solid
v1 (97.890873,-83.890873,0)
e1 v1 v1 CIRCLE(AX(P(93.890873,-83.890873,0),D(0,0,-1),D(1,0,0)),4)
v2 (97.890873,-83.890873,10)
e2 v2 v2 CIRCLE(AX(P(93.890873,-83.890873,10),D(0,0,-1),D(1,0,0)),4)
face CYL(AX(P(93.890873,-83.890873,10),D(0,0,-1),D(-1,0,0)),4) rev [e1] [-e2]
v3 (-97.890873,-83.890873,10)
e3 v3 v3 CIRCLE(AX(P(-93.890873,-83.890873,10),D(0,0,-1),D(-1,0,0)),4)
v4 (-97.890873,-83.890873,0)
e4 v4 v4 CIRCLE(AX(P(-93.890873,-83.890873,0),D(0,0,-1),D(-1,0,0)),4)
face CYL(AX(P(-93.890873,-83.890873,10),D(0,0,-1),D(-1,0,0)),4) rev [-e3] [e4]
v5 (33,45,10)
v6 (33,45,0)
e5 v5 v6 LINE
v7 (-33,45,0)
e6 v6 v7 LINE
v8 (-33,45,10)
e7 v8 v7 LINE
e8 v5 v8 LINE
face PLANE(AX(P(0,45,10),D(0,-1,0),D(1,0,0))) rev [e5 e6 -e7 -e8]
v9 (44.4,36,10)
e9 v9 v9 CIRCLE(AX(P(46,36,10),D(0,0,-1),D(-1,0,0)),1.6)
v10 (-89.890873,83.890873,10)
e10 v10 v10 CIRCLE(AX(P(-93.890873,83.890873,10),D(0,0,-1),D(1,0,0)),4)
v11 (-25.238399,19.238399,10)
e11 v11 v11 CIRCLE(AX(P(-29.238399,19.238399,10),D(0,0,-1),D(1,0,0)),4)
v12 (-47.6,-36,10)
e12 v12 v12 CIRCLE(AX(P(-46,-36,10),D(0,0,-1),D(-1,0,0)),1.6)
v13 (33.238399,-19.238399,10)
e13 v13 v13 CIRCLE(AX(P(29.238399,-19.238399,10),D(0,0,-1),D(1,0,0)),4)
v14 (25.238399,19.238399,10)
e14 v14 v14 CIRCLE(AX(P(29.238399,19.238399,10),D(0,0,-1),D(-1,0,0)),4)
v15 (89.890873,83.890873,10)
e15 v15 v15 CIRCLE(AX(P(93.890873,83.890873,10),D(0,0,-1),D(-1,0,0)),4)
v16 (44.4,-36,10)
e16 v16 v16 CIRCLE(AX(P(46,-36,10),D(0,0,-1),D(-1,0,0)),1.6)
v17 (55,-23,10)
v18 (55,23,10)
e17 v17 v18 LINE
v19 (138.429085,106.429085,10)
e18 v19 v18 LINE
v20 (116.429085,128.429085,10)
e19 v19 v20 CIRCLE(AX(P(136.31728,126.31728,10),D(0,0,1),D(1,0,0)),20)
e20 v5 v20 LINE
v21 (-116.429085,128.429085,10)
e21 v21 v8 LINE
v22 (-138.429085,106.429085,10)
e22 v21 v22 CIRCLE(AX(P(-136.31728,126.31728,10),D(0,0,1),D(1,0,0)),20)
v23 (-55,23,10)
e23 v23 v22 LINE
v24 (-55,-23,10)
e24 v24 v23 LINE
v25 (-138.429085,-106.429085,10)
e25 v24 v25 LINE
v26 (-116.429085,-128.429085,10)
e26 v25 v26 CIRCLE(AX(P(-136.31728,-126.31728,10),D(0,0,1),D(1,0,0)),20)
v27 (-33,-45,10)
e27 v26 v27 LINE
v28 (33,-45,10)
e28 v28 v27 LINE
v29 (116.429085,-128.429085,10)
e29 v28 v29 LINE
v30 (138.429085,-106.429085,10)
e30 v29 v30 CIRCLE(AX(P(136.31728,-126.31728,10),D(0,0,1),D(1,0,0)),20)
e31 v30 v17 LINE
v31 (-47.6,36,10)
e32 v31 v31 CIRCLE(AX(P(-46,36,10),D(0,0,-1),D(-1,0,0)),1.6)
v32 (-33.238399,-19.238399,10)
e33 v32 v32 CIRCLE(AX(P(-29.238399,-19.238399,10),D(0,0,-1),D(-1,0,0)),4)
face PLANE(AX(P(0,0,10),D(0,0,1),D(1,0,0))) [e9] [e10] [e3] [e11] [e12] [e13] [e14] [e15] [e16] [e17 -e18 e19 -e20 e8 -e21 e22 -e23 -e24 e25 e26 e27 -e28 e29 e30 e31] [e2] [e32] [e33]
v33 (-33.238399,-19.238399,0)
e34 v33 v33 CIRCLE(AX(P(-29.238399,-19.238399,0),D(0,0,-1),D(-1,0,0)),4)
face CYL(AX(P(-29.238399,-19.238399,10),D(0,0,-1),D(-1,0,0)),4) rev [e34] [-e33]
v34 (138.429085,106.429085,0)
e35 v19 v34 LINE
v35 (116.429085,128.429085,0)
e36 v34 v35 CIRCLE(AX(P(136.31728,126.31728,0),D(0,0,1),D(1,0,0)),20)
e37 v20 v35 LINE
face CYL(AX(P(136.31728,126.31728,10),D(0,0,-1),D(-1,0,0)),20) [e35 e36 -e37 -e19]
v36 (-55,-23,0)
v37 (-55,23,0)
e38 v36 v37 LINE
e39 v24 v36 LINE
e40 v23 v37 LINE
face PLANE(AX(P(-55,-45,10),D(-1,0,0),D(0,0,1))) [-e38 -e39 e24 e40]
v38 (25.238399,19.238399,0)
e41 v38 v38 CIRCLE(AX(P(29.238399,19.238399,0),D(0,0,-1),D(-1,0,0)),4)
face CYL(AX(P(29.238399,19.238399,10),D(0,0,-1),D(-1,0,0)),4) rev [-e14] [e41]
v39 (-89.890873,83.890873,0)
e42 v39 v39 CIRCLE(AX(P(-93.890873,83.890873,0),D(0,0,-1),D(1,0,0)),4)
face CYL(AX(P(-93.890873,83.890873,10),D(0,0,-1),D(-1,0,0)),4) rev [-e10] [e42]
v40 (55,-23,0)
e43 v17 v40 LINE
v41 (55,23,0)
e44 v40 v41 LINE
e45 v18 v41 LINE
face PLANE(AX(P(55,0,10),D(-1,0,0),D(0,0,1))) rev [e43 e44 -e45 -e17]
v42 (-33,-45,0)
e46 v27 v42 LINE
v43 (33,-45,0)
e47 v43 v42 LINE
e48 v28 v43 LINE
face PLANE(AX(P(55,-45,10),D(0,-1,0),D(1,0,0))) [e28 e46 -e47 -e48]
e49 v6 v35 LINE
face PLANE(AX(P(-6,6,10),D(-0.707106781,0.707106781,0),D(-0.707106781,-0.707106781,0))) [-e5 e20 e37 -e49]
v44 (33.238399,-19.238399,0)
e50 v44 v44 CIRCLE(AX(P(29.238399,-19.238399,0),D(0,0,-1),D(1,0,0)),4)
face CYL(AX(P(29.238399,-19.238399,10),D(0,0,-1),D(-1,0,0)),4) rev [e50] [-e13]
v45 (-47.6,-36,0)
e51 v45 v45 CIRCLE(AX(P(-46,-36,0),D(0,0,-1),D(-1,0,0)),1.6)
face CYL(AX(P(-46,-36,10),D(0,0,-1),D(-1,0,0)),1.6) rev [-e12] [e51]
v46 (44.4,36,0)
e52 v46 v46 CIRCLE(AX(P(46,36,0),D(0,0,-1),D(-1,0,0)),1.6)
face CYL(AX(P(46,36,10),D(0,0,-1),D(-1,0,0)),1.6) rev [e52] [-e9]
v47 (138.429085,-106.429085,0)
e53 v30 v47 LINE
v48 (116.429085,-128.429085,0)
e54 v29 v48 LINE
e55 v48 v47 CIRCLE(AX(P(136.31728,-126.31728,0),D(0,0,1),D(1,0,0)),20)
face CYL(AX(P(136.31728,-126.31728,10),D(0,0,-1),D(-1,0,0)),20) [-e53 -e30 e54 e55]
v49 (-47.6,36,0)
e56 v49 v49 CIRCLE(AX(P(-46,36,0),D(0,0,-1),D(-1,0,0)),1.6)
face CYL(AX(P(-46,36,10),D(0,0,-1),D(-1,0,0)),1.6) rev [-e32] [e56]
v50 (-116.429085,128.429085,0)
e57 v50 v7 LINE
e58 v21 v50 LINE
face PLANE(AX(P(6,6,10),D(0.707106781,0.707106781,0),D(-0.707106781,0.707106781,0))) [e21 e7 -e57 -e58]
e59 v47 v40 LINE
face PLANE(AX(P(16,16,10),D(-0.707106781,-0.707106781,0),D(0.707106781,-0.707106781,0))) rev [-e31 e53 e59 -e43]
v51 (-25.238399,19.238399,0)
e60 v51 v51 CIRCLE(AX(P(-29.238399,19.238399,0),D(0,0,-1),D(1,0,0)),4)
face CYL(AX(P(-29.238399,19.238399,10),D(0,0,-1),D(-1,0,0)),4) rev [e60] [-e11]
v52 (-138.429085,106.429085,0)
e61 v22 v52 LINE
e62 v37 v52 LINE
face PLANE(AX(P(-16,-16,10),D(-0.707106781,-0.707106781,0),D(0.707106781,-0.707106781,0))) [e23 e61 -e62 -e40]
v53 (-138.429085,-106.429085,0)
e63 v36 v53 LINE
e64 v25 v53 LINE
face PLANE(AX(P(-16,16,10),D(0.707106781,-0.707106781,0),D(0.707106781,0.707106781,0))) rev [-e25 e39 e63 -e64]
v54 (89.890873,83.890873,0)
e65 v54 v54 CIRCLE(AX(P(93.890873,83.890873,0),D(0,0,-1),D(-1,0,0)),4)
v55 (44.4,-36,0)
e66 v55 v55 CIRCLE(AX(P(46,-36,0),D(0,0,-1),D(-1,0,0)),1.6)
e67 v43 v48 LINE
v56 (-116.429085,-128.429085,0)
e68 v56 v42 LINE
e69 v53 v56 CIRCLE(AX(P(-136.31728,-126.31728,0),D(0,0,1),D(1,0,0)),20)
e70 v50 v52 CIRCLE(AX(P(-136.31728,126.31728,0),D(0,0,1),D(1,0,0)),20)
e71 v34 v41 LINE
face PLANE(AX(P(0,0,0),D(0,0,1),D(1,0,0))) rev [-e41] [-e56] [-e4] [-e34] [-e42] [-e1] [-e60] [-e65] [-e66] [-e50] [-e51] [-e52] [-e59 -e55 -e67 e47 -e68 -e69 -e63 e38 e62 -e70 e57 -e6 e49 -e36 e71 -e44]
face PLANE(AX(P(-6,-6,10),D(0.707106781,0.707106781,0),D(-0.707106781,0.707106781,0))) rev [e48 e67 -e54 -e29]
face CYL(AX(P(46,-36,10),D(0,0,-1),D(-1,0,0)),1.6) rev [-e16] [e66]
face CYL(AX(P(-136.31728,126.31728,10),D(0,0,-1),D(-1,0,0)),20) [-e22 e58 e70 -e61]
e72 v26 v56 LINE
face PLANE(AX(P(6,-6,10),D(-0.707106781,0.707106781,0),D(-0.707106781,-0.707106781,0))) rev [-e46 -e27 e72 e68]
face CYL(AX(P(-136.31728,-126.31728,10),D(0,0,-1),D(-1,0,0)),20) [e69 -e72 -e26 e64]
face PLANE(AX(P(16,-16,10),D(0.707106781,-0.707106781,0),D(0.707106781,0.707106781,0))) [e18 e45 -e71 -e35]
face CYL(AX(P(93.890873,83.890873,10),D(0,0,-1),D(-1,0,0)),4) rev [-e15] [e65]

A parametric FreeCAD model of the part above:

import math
import FreeCAD as App
import Part
import Sketcher
from FreeCAD import Vector

doc = App.newDocument("Part")
body = doc.addObject("PartDesign::Body", "Body")

# Sketch on XY plane
sketch1 = body.newObject("Sketcher::SketchObject", "Sketch")
sketch1.AttachmentSupport = (doc.getObject("XY_Plane"), [""])
sketch1.MapMode = "FlatFace"
sketch1.addGeometry(Part.ArcOfCircle(Part.Circle(Vector(-136, 126, 0), Vector(0, 0, 1), 20), math.radians(6), math.radians(264)), False)
sketch1.addGeometry(Part.LineSegment(Vector(-138, 106, 0), Vector(-55, 23, 0)), False)
sketch1.addGeometry(Part.LineSegment(Vector(-55, 23, 0), Vector(-55, -23, 0)), False)
sketch1.addGeometry(Part.LineSegment(Vector(-55, -23, 0), Vector(-138, -106, 0)), False)
sketch1.addGeometry(Part.ArcOfCircle(Part.Circle(Vector(-136, -126, 0), Vector(0, 0, 1), 20), math.radians(96), math.radians(354)), False)
sketch1.addGeometry(Part.LineSegment(Vector(-116, -128, 0), Vector(-33, -45, 0)), False)
sketch1.addGeometry(Part.LineSegment(Vector(-33, -45, 0), Vector(33, -45, 0)), False)
sketch1.addGeometry(Part.LineSegment(Vector(33, -45, 0), Vector(116, -128, 0)), False)
sketch1.addGeometry(Part.ArcOfCircle(Part.Circle(Vector(136, -126, 0), Vector(0, 0, 1), 20), math.radians(-174), math.radians(0)), False)
sketch1.addGeometry(Part.ArcOfCircle(Part.Circle(Vector(136, -126, 0), Vector(0, 0, 1), 20), math.radians(0), math.radians(84)), False)
sketch1.addGeometry(Part.LineSegment(Vector(138, -106, 0), Vector(55, -23, 0)), False)
sketch1.addGeometry(Part.LineSegment(Vector(55, -23, 0), Vector(55, 23, 0)), False)
sketch1.addGeometry(Part.LineSegment(Vector(55, 23, 0), Vector(138, 106, 0)), False)
sketch1.addGeometry(Part.ArcOfCircle(Part.Circle(Vector(136, 126, 0), Vector(0, 0, 1), 20), math.radians(-84), math.radians(0)), False)
sketch1.addGeometry(Part.ArcOfCircle(Part.Circle(Vector(136, 126, 0), Vector(0, 0, 1), 20), math.radians(0), math.radians(174)), False)
sketch1.addGeometry(Part.LineSegment(Vector(116, 128, 0), Vector(33, 45, 0)), False)
sketch1.addGeometry(Part.LineSegment(Vector(33, 45, 0), Vector(-33, 45, 0)), False)
sketch1.addGeometry(Part.LineSegment(Vector(-33, 45, 0), Vector(-116, 128, 0)), False)
sketch1.addConstraint(Sketcher.Constraint("Coincident", 0, 2, 1, 1))
sketch1.addConstraint(Sketcher.Constraint("Coincident", 1, 2, 2, 1))
sketch1.addConstraint(Sketcher.Constraint("Coincident", 2, 2, 3, 1))
sketch1.addConstraint(Sketcher.Constraint("Coincident", 3, 2, 4, 1))
sketch1.addConstraint(Sketcher.Constraint("Coincident", 4, 2, 5, 1))
sketch1.addConstraint(Sketcher.Constraint("Coincident", 5, 2, 6, 1))
sketch1.addConstraint(Sketcher.Constraint("Coincident", 6, 2, 7, 1))
sketch1.addConstraint(Sketcher.Constraint("Coincident", 7, 2, 8, 1))
sketch1.addConstraint(Sketcher.Constraint("Tangent", 8, 2, 9, 1))
sketch1.addConstraint(Sketcher.Constraint("Coincident", 9, 2, 10, 1))
sketch1.addConstraint(Sketcher.Constraint("Coincident", 10, 2, 11, 1))
sketch1.addConstraint(Sketcher.Constraint("Coincident", 11, 2, 12, 1))
sketch1.addConstraint(Sketcher.Constraint("Coincident", 12, 2, 13, 1))
sketch1.addConstraint(Sketcher.Constraint("Tangent", 13, 2, 14, 1))
sketch1.addConstraint(Sketcher.Constraint("Coincident", 14, 2, 15, 1))
sketch1.addConstraint(Sketcher.Constraint("Coincident", 15, 2, 16, 1))
sketch1.addConstraint(Sketcher.Constraint("Coincident", 16, 2, 17, 1))
sketch1.addConstraint(Sketcher.Constraint("Coincident", 17, 2, 0, 1))
sketch1.addConstraint(Sketcher.Constraint("Vertical", 2))
sketch1.addConstraint(Sketcher.Constraint("Horizontal", 6))
sketch1.addConstraint(Sketcher.Constraint("Vertical", 11))
sketch1.addConstraint(Sketcher.Constraint("Horizontal", 16))
sketch1.addConstraint(Sketcher.Constraint("Equal", 0, 4))
sketch1.addConstraint(Sketcher.Constraint("Equal", 4, 8))
sketch1.addConstraint(Sketcher.Constraint("Equal", 8, 9))
sketch1.addConstraint(Sketcher.Constraint("Equal", 9, 13))
sketch1.addConstraint(Sketcher.Constraint("Equal", 13, 14))
sketch1.addConstraint(Sketcher.Constraint("Symmetric", 0, 3, 8, 3, -1, 1))
sketch1.addConstraint(Sketcher.Constraint("Symmetric", 4, 3, 13, 3, -1, 1))
sketch1.addConstraint(Sketcher.Constraint("Symmetric", 1, 2, 10, 2, -1, 1))
sketch1.addConstraint(Sketcher.Constraint("Symmetric", 5, 2, 15, 2, -1, 1))
sketch1.addConstraint(Sketcher.Constraint("Symmetric", 4, 3, 8, 3, -2))
sketch1.addConstraint(Sketcher.Constraint("Perpendicular", 1, 3))
sketch1.addConstraint(Sketcher.Constraint("Parallel", 3, 5))
sketch1.addConstraint(Sketcher.Constraint("Perpendicular", 5, 7))
sketch1.addConstraint(Sketcher.Constraint("Parallel", 7, 10))
sketch1.addConstraint(Sketcher.Constraint("Perpendicular", 10, 12))
sketch1.addConstraint(Sketcher.Constraint("Parallel", 12, 15))
sketch1.addConstraint(Sketcher.Constraint("Perpendicular", 15, 17))
sketch1.addConstraint(Sketcher.Constraint("Horizontal", 4, 2, 7, 2))
sketch1.addConstraint(Sketcher.Constraint("Horizontal", 9, 3, 8, 2))
sketch1.addConstraint(Sketcher.Constraint("Horizontal", 3, 2, 9, 2))
sketch1.addConstraint(Sketcher.Constraint("Horizontal", 2, 2, 10, 2))
sketch1.addConstraint(Sketcher.Constraint("Horizontal", 1, 2, 11, 2))
sketch1.addConstraint(Sketcher.Constraint("Horizontal", 14, 3, 13, 2))
sketch1.addConstraint(Sketcher.Constraint("Horizontal", 14, 2, 17, 2))
sketch1.addConstraint(Sketcher.Constraint("Equal", 3, 5))
sketch1.addConstraint(Sketcher.Constraint("Radius", 0, 20.0))
sketch1.addConstraint(Sketcher.Constraint("DistanceX", 6, 1, 6, 2, 66.0))
sketch1.addConstraint(Sketcher.Constraint("DistanceY", 2, 2, 2, 1, 46.0))
sketch1.addConstraint(Sketcher.Constraint("DistanceX", 1, 2, -1, 1, 55.0))
sketch1.addConstraint(Sketcher.Constraint("DistanceY", 5, 2, -1, 1, 45.0))
sketch1.addConstraint(Sketcher.Constraint("DistanceX", 0, 3, -1, 1, 136.31728))
pad1 = body.newObject("PartDesign::Pad", "Pad")
pad1.Profile = sketch1
pad1.Length = 10

# Sketch on XY plane
sketch2 = body.newObject("Sketcher::SketchObject", "Sketch001")
sketch2.AttachmentSupport = (doc.getObject("XY_Plane"), [""])
sketch2.MapMode = "FlatFace"
sketch2.addGeometry(Part.Circle(Vector(-93.9, 83.9, 0), Vector(0, 0, 1), 4), False)
sketch2.addGeometry(Part.Circle(Vector(93.9, 83.9, 0), Vector(0, 0, 1), 4), False)
sketch2.addGeometry(Part.Circle(Vector(29.2, 19.2, 0), Vector(0, 0, 1), 4), False)
sketch2.addGeometry(Part.Circle(Vector(46, 36, 0), Vector(0, 0, 1), 1.6), False)
sketch2.addGeometry(Part.Circle(Vector(-46, 36, 0), Vector(0, 0, 1), 1.6), False)
sketch2.addGeometry(Part.Circle(Vector(-46, -36, 0), Vector(0, 0, 1), 1.6), False)
sketch2.addGeometry(Part.Circle(Vector(46, -36, 0), Vector(0, 0, 1), 1.6), False)
sketch2.addGeometry(Part.Circle(Vector(-29.2, 19.2, 0), Vector(0, 0, 1), 4), False)
sketch2.addGeometry(Part.Circle(Vector(93.9, -83.9, 0), Vector(0, 0, 1), 4), False)
sketch2.addGeometry(Part.Circle(Vector(29.2, -19.2, 0), Vector(0, 0, 1), 4), False)
sketch2.addGeometry(Part.Circle(Vector(-29.2, -19.2, 0), Vector(0, 0, 1), 4), False)
sketch2.addGeometry(Part.Circle(Vector(-93.9, -83.9, 0), Vector(0, 0, 1), 4), False)
sketch2.addConstraint(Sketcher.Constraint("Equal", 0, 1))
sketch2.addConstraint(Sketcher.Constraint("Equal", 1, 2))
sketch2.addConstraint(Sketcher.Constraint("Equal", 3, 4))
sketch2.addConstraint(Sketcher.Constraint("Equal", 4, 5))
sketch2.addConstraint(Sketcher.Constraint("Equal", 5, 6))
sketch2.addConstraint(Sketcher.Constraint("Equal", 2, 7))
sketch2.addConstraint(Sketcher.Constraint("Equal", 7, 8))
sketch2.addConstraint(Sketcher.Constraint("Equal", 8, 9))
sketch2.addConstraint(Sketcher.Constraint("Equal", 9, 10))
sketch2.addConstraint(Sketcher.Constraint("Equal", 10, 11))
sketch2.addConstraint(Sketcher.Constraint("Symmetric", 3, 3, 5, 3, -1, 1))
sketch2.addConstraint(Sketcher.Constraint("Symmetric", 4, 3, 6, 3, -1, 1))
sketch2.addConstraint(Sketcher.Constraint("Symmetric", 0, 3, 8, 3, -1, 1))
sketch2.addConstraint(Sketcher.Constraint("Symmetric", 7, 3, 9, 3, -1, 1))
sketch2.addConstraint(Sketcher.Constraint("Symmetric", 2, 3, 10, 3, -1, 1))
sketch2.addConstraint(Sketcher.Constraint("Symmetric", 1, 3, 11, 3, -1, 1))
sketch2.addConstraint(Sketcher.Constraint("Symmetric", 0, 3, 1, 3, -2))
sketch2.addConstraint(Sketcher.Constraint("Symmetric", 3, 3, 4, 3, -2))
sketch2.addConstraint(Sketcher.Constraint("Symmetric", 2, 3, 7, 3, -2))
sketch2.addConstraint(Sketcher.Constraint("Diameter", 0, 8.0))
sketch2.addConstraint(Sketcher.Constraint("Diameter", 3, 3.2))
sketch2.addConstraint(Sketcher.Constraint("DistanceX", -1, 1, 3, 3, 46.0))
sketch2.addConstraint(Sketcher.Constraint("DistanceY", -1, 1, 3, 3, 36.0))
sketch2.addConstraint(Sketcher.Constraint("DistanceX", -1, 1, 2, 3, 29.238399))
sketch2.addConstraint(Sketcher.Constraint("DistanceY", -1, 1, 2, 3, 19.238399))
sketch2.addConstraint(Sketcher.Constraint("DistanceX", 0, 3, -1, 1, 93.890873))
sketch2.addConstraint(Sketcher.Constraint("DistanceY", -1, 1, 0, 3, 83.890873))
pocket1 = body.newObject("PartDesign::Pocket", "Pocket")
pocket1.Profile = sketch2
pocket1.Type = "ThroughAll"
pocket1.Reversed = True

doc.recompute()
